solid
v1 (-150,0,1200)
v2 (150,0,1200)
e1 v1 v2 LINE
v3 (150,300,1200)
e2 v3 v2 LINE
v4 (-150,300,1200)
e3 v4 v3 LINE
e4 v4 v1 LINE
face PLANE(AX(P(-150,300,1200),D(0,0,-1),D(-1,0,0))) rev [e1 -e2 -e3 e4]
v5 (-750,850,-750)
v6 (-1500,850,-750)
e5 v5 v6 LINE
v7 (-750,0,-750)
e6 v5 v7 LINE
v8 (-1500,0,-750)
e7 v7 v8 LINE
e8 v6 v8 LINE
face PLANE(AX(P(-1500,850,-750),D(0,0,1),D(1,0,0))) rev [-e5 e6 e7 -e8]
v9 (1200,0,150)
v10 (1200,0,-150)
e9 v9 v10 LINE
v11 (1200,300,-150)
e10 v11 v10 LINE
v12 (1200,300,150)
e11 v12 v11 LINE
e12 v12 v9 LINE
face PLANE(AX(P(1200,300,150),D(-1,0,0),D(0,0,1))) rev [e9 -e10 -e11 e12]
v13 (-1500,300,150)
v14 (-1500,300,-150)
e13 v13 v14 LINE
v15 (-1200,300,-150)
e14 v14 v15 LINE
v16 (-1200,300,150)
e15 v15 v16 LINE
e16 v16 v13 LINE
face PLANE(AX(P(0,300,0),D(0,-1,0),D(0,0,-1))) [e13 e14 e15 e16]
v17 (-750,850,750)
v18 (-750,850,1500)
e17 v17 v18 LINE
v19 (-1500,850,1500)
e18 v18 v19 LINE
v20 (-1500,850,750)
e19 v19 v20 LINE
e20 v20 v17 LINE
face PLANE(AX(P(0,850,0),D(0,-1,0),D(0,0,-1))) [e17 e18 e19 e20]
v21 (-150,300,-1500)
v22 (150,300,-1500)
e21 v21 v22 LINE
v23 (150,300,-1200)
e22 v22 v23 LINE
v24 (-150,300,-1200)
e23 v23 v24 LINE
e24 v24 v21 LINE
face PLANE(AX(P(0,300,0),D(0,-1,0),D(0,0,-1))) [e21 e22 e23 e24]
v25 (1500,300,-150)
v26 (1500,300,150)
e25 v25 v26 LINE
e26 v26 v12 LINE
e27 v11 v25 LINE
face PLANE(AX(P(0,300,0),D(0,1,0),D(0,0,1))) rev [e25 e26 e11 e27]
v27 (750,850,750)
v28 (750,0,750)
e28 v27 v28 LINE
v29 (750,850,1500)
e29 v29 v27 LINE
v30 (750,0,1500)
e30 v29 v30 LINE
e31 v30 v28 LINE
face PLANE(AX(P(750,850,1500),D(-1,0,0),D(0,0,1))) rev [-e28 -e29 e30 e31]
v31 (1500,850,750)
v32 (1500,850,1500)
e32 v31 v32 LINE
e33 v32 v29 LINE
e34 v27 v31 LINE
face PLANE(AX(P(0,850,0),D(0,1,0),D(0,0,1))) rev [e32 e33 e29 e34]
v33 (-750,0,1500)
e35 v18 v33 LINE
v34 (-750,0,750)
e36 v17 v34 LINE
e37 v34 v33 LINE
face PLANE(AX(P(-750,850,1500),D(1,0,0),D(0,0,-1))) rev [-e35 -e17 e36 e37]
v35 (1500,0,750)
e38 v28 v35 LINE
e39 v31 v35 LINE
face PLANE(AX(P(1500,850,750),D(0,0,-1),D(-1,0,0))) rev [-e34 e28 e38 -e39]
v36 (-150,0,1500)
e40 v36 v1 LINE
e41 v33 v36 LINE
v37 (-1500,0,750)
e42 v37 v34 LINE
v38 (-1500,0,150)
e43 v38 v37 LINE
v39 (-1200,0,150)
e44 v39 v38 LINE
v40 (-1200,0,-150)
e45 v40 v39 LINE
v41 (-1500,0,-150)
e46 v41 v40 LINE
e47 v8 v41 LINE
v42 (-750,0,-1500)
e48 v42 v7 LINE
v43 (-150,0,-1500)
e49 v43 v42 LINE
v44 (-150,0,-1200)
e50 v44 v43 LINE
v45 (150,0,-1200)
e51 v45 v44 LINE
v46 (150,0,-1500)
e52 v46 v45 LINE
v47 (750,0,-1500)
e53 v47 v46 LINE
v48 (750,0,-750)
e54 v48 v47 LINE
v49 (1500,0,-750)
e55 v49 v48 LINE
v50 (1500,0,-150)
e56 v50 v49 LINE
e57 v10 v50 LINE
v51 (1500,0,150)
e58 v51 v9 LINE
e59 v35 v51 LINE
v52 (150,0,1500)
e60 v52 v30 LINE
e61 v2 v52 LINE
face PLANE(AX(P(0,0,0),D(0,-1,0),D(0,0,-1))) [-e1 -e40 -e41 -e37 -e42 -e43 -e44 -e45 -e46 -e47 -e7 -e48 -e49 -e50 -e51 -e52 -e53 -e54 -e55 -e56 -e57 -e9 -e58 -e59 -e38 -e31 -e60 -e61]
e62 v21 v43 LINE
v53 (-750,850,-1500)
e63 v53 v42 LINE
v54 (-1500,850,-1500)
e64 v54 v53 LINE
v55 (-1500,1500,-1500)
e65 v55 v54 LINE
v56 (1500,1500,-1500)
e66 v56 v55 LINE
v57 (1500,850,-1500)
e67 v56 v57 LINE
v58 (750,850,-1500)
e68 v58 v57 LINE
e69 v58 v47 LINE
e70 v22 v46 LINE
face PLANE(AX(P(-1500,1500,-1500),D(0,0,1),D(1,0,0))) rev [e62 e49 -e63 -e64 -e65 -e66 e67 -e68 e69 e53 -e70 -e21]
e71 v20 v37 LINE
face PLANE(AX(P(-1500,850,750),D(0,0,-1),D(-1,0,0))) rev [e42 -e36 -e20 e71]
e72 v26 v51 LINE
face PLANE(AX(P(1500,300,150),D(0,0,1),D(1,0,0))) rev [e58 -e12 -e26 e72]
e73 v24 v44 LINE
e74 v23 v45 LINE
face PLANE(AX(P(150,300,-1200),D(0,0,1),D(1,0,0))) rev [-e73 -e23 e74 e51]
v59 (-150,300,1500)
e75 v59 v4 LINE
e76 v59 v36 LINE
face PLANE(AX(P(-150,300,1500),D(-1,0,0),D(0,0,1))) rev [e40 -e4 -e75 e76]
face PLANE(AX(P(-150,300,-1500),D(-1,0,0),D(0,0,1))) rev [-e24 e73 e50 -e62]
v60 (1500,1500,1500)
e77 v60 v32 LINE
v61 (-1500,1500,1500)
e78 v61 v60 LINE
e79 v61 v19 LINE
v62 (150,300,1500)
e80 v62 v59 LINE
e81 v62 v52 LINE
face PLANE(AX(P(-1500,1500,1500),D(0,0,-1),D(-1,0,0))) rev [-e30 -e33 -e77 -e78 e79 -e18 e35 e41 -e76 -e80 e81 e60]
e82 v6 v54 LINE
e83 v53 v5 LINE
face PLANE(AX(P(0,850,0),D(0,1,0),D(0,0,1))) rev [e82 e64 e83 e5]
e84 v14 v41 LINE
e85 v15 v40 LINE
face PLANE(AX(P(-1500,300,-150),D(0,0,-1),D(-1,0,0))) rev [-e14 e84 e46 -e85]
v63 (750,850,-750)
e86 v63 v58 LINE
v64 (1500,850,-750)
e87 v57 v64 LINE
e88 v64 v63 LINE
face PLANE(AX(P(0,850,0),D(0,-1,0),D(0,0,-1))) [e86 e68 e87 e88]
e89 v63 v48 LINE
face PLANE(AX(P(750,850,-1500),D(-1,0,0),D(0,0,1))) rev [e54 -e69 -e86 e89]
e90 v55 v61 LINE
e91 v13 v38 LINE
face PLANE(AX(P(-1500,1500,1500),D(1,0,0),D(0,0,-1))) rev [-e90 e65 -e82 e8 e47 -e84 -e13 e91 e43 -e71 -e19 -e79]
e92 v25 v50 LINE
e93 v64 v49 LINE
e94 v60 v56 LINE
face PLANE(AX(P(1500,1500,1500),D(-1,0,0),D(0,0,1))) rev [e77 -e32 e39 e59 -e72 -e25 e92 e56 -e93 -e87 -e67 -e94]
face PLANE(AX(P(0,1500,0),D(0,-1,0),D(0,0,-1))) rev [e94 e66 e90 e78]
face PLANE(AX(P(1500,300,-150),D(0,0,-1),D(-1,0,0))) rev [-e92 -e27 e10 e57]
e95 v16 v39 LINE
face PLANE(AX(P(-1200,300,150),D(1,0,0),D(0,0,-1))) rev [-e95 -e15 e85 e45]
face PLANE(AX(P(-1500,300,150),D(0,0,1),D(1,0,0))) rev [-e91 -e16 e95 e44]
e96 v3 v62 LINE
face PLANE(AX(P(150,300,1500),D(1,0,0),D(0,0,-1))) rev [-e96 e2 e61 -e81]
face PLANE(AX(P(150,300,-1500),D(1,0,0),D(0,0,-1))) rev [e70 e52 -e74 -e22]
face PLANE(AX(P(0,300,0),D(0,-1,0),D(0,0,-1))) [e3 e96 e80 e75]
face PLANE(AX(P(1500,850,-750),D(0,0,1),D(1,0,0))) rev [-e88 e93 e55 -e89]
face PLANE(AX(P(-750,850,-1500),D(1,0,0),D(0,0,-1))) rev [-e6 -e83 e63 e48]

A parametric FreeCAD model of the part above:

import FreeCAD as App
import Part
import Sketcher

V = App.Vector
Q = App.Units.Quantity


def add_polygon(sketch, points):
    """Adds a closed chain of lines whose ends are joined by coincident constraints."""
    first, n = sketch.GeometryCount, len(points)
    for a, b in zip(points, points[1:] + points[:1]):
        sketch.addGeometry(Part.LineSegment(App.Vector(*a, 0), App.Vector(*b, 0)), False)
    for i in range(n):
        sketch.addConstraint(Sketcher.Constraint("Coincident", first + i, 2, first + (i + 1) % n, 1))

doc = App.newDocument("Part")
body = doc.addObject("PartDesign::Body", "Body")

# Sketch on XZ plane
sketch1 = doc.addObject("Sketcher::SketchObject", "Sketch")
body.addObject(sketch1)
sketch1.AttachmentSupport = (doc.XZ_Plane, [""])
sketch1.MapMode = "FlatFace"
add_polygon(sketch1, [(-1500, -1500), (-1500, 1500), (1500, 1500), (1500, -1500)])  # lines 0-3
sketch1.addConstraint(Sketcher.Constraint("Vertical", 0))
sketch1.addConstraint(Sketcher.Constraint("Horizontal", 1))
sketch1.addConstraint(Sketcher.Constraint("Vertical", 2))
sketch1.addConstraint(Sketcher.Constraint("Horizontal", 3))
sketch1.addConstraint(Sketcher.Constraint("Symmetric", 0, 2, 2, 2, -1, 1))
sketch1.addConstraint(Sketcher.Constraint("Equal", 3, 0))
sketch1.addConstraint(Sketcher.Constraint("DistanceX", 1, 1, 1, 2, Q("3000 mm")))
pad1 = doc.addObject("PartDesign::Pad", "Pad")
body.addObject(pad1)
pad1.Profile = sketch1
pad1.Length = 1500
pad1.Reversed = True

# Sketch on XZ plane
sketch2 = doc.addObject("Sketcher::SketchObject", "Sketch001")
body.addObject(sketch2)
sketch2.AttachmentSupport = (doc.XZ_Plane, [""])
sketch2.MapMode = "FlatFace"
add_polygon(sketch2, [(-1500, 1500), (-1500, 750), (-750, 750), (-750, 1500)])  # lines 0-3
add_polygon(sketch2, [(750, 1500), (750, 750), (1500, 750), (1500, 1500)])  # lines 4-7
add_polygon(sketch2, [(750, -750), (750, -1500), (1500, -1500), (1500, -750)])  # lines 8-11
add_polygon(sketch2, [(-1500, -750), (-1500, -1500), (-750, -1500), (-750, -750)])  # lines 12-15
sketch2.addConstraint(Sketcher.Constraint("Vertical", 0))
sketch2.addConstraint(Sketcher.Constraint("Horizontal", 1))
sketch2.addConstraint(Sketcher.Constraint("Vertical", 2))
sketch2.addConstraint(Sketcher.Constraint("Horizontal", 3))
sketch2.addConstraint(Sketcher.Constraint("Vertical", 4))
sketch2.addConstraint(Sketcher.Constraint("Horizontal", 5))
sketch2.addConstraint(Sketcher.Constraint("Vertical", 6))
sketch2.addConstraint(Sketcher.Constraint("Horizontal", 7))
sketch2.addConstraint(Sketcher.Constraint("Vertical", 8))
sketch2.addConstraint(Sketcher.Constraint("Horizontal", 9))
sketch2.addConstraint(Sketcher.Constraint("Vertical", 10))
sketch2.addConstraint(Sketcher.Constraint("Horizontal", 11))
sketch2.addConstraint(Sketcher.Constraint("Vertical", 12))
sketch2.addConstraint(Sketcher.Constraint("Horizontal", 13))
sketch2.addConstraint(Sketcher.Constraint("Vertical", 14))
sketch2.addConstraint(Sketcher.Constraint("Horizontal", 15))
sketch2.addConstraint(Sketcher.Constraint("Symmetric", 2, 2, 8, 2, -1, 1))
sketch2.addConstraint(Sketcher.Constraint("Symmetric", 0, 2, 10, 2, -1, 1))
sketch2.addConstraint(Sketcher.Constraint("Symmetric", 6, 2, 12, 2, -1, 1))
sketch2.addConstraint(Sketcher.Constraint("Symmetric", 4, 2, 14, 2, -1, 1))
sketch2.addConstraint(Sketcher.Constraint("Symmetric", 1, 2, 4, 2, -2))
sketch2.addConstraint(Sketcher.Constraint("Symmetric", 3, 2, 6, 2, -2))
sketch2.addConstraint(Sketcher.Constraint("Equal", 15, 0))
sketch2.addConstraint(Sketcher.Constraint("DistanceX", 1, 1, 1, 2, Q("750 mm")))
sketch2.addConstraint(Sketcher.Constraint("DistanceX", 0, 2, -1, 1, Q("1500 mm")))
sketch2.addConstraint(Sketcher.Constraint("DistanceY", -1, 1, 0, 2, Q("750 mm")))
pocket1 = doc.addObject("PartDesign::Pocket", "Pocket")
body.addObject(pocket1)
pocket1.Profile = sketch2
pocket1.Length = 850

# Sketch on XZ plane
sketch3 = doc.addObject("Sketcher::SketchObject", "Sketch002")
body.addObject(sketch3)
sketch3.AttachmentSupport = (doc.XZ_Plane, [""])
sketch3.MapMode = "FlatFace"
add_polygon(sketch3, [(-150, 1500), (-150, 1200), (150, 1200), (150, 1500)])  # lines 0-3
add_polygon(sketch3, [(1200, 150), (1200, -150), (1500, -150), (1500, 150)])  # lines 4-7
add_polygon(sketch3, [(-150, -1200), (-150, -1500), (150, -1500), (150, -1200)])  # lines 8-11
add_polygon(sketch3, [(-1500, 150), (-1500, -150), (-1200, -150), (-1200, 150)])  # lines 12-15
sketch3.addConstraint(Sketcher.Constraint("Vertical", 0))
sketch3.addConstraint(Sketcher.Constraint("Horizontal", 1))
sketch3.addConstraint(Sketcher.Constraint("Vertical", 2))
sketch3.addConstraint(Sketcher.Constraint("Horizontal", 3))
sketch3.addConstraint(Sketcher.Constraint("Vertical", 4))
sketch3.addConstraint(Sketcher.Constraint("Horizontal", 5))
sketch3.addConstraint(Sketcher.Constraint("Vertical", 6))
sketch3.addConstraint(Sketcher.Constraint("Horizontal", 7))
sketch3.addConstraint(Sketcher.Constraint("Vertical", 8))
sketch3.addConstraint(Sketcher.Constraint("Horizontal", 9))
sketch3.addConstraint(Sketcher.Constraint("Vertical", 10))
sketch3.addConstraint(Sketcher.Constraint("Horizontal", 11))
sketch3.addConstraint(Sketcher.Constraint("Vertical", 12))
sketch3.addConstraint(Sketcher.Constraint("Horizontal", 13))
sketch3.addConstraint(Sketcher.Constraint("Vertical", 14))
sketch3.addConstraint(Sketcher.Constraint("Horizontal", 15))
sketch3.addConstraint(Sketcher.Constraint("Symmetric", 2, 2, 8, 2, -1, 1))
sketch3.addConstraint(Sketcher.Constraint("Symmetric", 0, 2, 10, 2, -1, 1))
sketch3.addConstraint(Sketcher.Constraint("Symmetric", 6, 2, 12, 2, -1, 1))
sketch3.addConstraint(Sketcher.Constraint("Symmetric", 4, 2, 14, 2, -1, 1))
sketch3.addConstraint(Sketcher.Constraint("Horizontal", 5, 2, 12, 2))
sketch3.addConstraint(Sketcher.Constraint("Vertical", 3, 2, 8, 2))
sketch3.addConstraint(Sketcher.Constraint("Equal", 3, 5))
sketch3.addConstraint(Sketcher.Constraint("Equal", 15, 0))
sketch3.addConstraint(Sketcher.Constraint("Equal", 2, 4))
sketch3.addConstraint(Sketcher.Constraint("DistanceX", 1, 1, 1, 2, Q("300 mm")))
sketch3.addConstraint(Sketcher.Constraint("DistanceY", -1, 1, 0, 2, Q("1200 mm")))
sketch3.addConstraint(Sketcher.Constraint("DistanceX", -1, 1, 4, 2, Q("1200 mm")))
pocket2 = doc.addObject("PartDesign::Pocket", "Pocket001")
body.addObject(pocket2)
pocket2.Profile = sketch3
pocket2.Length = 300

doc.recompute()
